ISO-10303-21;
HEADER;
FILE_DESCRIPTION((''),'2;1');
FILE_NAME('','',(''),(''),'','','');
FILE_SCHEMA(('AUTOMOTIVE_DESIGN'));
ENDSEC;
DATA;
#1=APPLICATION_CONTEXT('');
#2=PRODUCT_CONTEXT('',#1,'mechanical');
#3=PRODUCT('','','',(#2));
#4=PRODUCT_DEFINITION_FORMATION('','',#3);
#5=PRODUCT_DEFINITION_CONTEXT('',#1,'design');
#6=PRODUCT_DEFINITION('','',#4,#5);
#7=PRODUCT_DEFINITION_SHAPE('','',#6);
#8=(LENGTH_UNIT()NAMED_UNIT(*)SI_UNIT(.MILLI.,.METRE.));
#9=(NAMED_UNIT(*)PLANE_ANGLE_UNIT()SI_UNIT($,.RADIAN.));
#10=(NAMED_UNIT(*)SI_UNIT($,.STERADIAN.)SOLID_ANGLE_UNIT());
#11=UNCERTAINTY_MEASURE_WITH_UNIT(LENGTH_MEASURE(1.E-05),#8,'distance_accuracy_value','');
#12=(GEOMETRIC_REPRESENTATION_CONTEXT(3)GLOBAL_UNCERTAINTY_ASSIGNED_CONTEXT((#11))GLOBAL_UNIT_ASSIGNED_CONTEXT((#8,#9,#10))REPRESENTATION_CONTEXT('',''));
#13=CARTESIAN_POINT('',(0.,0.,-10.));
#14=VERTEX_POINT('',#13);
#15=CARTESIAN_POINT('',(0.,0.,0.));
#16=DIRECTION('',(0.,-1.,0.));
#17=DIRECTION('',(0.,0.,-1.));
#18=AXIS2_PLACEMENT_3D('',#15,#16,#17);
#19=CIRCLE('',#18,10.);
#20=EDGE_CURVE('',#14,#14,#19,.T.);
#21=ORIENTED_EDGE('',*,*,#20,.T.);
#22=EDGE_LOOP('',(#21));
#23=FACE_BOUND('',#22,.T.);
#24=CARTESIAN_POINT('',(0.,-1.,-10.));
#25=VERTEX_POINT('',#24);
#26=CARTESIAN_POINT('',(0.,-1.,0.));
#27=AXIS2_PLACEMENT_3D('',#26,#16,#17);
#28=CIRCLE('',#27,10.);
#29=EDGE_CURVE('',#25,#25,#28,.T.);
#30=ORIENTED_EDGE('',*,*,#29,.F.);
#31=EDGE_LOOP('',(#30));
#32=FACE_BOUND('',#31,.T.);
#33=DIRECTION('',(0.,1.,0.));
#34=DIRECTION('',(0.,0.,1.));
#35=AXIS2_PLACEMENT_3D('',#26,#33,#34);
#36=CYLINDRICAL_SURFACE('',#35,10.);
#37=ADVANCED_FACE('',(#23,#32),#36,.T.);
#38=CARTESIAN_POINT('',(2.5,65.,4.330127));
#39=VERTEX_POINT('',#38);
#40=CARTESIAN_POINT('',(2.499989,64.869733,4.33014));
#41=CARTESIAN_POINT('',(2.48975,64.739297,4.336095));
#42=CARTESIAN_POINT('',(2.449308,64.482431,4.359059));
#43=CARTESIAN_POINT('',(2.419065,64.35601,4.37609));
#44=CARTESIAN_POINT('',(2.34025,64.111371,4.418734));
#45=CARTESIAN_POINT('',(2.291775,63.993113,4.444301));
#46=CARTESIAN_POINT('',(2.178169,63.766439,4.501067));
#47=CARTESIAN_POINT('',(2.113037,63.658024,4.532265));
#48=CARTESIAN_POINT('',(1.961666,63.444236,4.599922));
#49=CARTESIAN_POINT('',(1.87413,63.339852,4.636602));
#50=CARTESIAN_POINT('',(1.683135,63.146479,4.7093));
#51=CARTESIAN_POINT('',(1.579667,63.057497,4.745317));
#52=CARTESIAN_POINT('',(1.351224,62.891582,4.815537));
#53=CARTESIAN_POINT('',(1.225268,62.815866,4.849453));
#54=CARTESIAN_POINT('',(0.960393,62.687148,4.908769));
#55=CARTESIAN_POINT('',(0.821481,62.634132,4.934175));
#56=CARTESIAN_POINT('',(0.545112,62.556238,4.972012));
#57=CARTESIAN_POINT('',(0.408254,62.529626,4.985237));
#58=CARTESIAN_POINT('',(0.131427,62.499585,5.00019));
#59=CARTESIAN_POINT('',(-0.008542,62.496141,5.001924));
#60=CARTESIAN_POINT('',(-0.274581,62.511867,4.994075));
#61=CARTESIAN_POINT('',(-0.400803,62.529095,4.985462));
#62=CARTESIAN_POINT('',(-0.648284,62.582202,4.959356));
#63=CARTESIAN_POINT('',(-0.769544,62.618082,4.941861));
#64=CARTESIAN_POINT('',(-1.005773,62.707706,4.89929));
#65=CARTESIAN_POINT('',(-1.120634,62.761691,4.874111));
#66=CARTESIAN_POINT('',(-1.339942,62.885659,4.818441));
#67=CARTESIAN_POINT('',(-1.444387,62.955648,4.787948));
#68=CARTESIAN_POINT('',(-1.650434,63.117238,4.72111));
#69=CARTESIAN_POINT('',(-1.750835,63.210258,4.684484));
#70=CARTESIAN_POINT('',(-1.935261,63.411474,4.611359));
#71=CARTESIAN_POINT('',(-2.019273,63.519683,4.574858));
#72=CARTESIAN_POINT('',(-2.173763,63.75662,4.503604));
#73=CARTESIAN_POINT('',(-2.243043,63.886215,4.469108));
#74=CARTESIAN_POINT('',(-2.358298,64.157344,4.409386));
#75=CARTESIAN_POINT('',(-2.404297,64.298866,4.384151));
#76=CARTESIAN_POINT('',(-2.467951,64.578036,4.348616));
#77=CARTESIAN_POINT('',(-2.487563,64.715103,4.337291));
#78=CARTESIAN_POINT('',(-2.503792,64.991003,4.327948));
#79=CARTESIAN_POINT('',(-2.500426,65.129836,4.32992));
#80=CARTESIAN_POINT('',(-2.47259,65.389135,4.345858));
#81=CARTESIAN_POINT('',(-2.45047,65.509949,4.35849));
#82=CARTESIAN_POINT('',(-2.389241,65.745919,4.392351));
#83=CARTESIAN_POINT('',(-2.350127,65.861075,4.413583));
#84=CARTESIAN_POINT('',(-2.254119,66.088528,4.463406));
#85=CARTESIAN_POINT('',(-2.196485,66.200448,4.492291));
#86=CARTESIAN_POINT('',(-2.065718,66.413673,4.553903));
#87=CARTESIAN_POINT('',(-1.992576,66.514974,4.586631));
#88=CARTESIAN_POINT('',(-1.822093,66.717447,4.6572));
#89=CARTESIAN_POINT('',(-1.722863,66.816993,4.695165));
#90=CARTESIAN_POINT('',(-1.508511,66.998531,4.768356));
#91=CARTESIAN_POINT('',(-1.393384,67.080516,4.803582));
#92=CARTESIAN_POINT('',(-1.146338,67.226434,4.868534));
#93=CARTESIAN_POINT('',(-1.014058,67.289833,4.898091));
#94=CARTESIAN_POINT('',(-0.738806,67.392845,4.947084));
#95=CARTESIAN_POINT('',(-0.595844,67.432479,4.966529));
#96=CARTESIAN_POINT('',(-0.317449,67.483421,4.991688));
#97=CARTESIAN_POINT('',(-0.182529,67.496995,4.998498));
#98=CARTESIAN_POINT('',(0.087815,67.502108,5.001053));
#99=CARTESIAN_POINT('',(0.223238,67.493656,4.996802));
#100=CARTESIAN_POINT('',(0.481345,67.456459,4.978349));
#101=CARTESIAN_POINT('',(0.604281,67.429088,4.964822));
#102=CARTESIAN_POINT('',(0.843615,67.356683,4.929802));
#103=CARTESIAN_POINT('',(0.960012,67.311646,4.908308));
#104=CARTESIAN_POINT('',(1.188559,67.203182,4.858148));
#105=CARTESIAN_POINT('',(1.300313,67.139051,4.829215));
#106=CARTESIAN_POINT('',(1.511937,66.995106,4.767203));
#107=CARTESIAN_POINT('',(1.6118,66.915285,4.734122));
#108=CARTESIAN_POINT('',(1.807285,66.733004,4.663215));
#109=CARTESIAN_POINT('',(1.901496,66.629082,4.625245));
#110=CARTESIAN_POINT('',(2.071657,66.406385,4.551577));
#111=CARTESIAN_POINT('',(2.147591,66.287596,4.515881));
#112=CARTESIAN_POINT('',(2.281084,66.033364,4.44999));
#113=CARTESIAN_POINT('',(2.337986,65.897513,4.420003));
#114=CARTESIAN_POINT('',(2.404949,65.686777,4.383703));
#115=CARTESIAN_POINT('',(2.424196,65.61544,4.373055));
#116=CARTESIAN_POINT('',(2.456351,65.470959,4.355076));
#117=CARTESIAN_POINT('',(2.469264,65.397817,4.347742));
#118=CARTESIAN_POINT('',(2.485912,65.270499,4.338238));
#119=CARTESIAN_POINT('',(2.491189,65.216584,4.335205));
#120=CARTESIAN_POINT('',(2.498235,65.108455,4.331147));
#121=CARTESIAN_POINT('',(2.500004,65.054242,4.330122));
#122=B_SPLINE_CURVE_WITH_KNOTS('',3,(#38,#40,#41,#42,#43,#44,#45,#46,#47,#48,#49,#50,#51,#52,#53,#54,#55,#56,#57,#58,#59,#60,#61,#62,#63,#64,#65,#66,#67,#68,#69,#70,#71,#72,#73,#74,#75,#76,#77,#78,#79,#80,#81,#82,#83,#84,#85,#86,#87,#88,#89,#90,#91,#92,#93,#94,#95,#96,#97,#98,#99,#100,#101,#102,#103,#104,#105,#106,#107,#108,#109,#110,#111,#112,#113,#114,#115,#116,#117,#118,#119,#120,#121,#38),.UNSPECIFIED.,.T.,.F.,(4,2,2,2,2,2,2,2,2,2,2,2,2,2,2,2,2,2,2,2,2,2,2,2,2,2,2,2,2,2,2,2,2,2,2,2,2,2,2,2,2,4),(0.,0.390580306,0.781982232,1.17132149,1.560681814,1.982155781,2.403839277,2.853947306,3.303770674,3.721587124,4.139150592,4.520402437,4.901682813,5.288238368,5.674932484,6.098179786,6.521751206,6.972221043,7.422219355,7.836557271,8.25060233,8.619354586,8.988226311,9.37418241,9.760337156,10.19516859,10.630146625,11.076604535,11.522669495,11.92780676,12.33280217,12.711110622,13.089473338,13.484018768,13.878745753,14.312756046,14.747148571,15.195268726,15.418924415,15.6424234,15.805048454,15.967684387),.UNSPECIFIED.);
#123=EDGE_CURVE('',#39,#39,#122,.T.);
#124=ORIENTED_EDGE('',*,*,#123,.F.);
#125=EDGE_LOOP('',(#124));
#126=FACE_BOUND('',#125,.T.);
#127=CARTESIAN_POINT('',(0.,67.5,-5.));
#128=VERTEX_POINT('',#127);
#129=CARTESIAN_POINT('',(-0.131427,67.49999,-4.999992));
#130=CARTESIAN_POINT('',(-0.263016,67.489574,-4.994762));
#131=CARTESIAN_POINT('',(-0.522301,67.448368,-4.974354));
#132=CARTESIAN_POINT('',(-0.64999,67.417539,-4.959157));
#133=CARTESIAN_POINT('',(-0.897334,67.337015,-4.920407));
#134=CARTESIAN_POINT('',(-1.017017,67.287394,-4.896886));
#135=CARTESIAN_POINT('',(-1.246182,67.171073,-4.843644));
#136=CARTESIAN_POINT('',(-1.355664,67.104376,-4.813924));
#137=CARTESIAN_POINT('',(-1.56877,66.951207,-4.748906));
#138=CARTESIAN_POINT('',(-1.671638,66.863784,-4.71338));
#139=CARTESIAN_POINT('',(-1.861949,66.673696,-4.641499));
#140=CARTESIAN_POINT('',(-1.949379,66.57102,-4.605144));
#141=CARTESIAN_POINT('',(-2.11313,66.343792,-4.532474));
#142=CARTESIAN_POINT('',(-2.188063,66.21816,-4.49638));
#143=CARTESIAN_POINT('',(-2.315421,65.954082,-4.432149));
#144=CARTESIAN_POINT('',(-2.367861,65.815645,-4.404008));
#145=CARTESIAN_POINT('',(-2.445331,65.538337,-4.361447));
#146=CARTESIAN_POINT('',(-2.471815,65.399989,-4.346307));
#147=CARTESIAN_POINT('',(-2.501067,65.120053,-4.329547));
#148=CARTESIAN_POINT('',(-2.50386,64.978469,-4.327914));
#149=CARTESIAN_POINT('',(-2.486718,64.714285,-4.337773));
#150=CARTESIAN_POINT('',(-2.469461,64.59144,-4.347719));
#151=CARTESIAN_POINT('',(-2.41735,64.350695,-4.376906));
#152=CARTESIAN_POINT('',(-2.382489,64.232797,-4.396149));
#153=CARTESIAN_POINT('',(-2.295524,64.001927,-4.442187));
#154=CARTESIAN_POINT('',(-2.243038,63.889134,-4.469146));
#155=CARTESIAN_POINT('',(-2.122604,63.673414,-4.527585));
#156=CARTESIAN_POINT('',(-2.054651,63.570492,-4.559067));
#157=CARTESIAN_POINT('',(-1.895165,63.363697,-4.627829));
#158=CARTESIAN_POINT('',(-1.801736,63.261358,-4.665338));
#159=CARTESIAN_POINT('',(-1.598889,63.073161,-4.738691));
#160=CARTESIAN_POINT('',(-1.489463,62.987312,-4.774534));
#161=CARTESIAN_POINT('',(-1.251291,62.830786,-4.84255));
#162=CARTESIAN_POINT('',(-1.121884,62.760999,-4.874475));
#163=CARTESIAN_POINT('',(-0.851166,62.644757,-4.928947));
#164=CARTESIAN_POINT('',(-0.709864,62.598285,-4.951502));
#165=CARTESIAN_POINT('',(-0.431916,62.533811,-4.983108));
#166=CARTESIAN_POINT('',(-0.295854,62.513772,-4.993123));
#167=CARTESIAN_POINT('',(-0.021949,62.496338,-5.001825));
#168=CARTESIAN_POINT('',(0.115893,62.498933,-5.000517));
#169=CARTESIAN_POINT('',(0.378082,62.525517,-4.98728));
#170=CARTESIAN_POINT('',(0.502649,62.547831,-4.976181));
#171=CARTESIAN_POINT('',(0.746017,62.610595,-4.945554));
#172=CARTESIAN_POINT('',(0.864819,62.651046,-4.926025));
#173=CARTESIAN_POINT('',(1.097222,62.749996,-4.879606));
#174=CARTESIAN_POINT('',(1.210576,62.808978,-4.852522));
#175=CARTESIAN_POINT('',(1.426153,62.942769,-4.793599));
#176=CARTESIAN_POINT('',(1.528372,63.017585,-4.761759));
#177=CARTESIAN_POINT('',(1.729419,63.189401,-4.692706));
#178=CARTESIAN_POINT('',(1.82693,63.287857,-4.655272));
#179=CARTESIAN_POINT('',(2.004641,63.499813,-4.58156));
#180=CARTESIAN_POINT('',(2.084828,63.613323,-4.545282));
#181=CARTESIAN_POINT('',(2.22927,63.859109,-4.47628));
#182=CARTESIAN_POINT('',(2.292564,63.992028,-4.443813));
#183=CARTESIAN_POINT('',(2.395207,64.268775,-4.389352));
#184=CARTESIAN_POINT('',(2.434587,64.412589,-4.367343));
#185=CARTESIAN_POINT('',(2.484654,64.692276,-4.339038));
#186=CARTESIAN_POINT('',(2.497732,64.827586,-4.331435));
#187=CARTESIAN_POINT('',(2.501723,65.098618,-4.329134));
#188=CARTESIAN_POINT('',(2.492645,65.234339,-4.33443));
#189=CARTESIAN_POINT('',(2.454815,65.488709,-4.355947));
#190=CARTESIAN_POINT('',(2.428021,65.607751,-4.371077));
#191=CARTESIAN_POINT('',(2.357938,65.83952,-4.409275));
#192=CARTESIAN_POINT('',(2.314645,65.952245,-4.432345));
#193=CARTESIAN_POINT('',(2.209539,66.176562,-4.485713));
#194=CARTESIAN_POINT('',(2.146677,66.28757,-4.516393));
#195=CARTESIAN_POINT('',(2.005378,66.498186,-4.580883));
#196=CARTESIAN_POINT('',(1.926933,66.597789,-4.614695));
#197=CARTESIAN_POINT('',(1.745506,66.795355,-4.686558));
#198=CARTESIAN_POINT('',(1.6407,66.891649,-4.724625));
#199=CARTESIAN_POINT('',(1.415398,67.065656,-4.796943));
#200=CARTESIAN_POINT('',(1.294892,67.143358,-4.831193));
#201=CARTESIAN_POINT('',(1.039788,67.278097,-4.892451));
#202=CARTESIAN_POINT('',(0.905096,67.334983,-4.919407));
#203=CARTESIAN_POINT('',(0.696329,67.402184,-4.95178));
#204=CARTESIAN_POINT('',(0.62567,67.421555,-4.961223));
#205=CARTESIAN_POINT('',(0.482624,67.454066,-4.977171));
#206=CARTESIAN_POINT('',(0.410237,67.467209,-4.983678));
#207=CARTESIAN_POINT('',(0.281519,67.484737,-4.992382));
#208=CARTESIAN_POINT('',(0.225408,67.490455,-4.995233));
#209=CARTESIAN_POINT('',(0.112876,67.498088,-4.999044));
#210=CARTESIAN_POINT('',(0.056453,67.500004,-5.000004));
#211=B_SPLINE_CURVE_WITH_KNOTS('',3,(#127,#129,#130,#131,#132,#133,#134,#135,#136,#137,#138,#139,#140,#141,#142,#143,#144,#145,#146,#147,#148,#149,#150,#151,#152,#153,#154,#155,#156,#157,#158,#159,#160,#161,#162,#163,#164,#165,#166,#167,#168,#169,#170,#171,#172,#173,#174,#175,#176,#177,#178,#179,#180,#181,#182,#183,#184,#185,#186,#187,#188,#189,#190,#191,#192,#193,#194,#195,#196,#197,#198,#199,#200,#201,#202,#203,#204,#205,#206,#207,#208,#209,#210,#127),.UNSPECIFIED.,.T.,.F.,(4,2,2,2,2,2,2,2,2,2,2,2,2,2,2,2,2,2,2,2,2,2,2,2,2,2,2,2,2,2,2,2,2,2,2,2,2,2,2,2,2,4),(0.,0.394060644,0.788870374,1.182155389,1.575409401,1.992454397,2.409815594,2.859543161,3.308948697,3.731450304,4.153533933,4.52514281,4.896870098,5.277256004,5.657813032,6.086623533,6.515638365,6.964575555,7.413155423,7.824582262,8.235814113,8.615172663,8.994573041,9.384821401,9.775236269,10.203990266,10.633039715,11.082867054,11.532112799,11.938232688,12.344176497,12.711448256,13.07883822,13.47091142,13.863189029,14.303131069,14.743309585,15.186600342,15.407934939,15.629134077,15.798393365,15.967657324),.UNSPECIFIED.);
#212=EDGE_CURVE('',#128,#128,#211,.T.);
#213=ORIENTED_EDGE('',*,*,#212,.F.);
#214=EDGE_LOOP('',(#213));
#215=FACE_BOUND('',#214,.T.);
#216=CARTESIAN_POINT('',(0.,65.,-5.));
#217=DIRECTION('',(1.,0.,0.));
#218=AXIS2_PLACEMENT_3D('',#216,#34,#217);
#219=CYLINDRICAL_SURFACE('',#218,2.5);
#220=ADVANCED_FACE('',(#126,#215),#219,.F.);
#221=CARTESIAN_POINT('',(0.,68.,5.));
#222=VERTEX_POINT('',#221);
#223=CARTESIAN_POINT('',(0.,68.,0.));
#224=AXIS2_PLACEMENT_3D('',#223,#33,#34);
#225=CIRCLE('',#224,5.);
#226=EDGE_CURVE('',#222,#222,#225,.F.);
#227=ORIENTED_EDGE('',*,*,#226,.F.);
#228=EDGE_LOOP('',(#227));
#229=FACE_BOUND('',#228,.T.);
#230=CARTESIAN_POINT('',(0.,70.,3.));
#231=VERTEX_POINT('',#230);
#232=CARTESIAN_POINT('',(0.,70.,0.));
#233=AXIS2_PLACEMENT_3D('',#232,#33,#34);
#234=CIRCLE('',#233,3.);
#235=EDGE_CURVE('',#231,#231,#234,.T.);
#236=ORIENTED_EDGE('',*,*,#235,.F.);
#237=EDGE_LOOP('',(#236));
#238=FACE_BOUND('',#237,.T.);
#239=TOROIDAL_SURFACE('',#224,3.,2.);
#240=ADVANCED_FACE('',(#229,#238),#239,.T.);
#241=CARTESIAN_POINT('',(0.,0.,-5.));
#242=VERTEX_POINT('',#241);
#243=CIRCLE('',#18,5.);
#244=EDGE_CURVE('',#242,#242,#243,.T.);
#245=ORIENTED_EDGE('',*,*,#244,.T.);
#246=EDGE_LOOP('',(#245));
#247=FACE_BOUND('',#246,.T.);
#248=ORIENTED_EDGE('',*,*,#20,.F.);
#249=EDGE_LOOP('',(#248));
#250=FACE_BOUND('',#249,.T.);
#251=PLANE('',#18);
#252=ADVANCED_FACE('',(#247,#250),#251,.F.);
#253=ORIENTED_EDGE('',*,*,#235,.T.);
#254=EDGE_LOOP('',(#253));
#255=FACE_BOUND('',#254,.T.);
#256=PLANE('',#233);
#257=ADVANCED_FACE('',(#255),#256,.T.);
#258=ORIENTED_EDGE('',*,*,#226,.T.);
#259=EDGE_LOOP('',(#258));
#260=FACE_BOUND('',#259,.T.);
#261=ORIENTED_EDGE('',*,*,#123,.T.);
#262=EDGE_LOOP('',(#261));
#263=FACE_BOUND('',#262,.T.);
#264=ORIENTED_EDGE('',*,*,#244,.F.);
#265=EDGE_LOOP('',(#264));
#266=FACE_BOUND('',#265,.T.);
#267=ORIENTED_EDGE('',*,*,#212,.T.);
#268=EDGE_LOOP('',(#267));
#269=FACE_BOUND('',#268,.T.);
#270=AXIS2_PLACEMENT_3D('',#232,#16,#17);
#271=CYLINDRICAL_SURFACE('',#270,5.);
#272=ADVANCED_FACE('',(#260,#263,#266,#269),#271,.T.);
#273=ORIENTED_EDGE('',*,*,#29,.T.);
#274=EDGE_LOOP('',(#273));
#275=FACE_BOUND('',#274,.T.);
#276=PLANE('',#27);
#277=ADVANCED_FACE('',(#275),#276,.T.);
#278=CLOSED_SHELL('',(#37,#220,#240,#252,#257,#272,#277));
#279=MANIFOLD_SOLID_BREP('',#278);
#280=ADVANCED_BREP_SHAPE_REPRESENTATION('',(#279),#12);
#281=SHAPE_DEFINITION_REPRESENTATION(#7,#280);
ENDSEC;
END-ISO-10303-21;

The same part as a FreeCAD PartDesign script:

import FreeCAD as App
import Part
import Sketcher
from FreeCAD import Vector


def edges_at(feature, points):
    """Names of the edges that pass closest to the given points."""
    edges = feature.Shape.Edges
    near = lambda p: min(range(len(edges)), key=lambda i: edges[i].distToShape(Part.Vertex(*p))[0])
    return sorted({f"Edge{near(p) + 1}" for p in points})

doc = App.newDocument("Part")
params = doc.addObject("Spreadsheet::Sheet", "Params")
for row, (alias, value) in enumerate([
    ("sketch1_diameter", "10 mm"),
    ("pad1_length", "70 mm"),
    ("fillet_radius", "2 mm"),
    ("sketch2_diameter", "5 mm"),
    ("sketch3_diameter", "20 mm"),
    ("pad2_length", "1 mm"),
], start=1):
    params.set(f"A{row}", alias)
    params.set(f"B{row}", "=" + value)
    params.setAlias(f"B{row}", alias)

body = doc.addObject("PartDesign::Body", "Body")

# Sketch on XZ plane
sketch1 = doc.addObject("Sketcher::SketchObject", "Sketch")
body.addObject(sketch1)
sketch1.AttachmentSupport = (doc.XZ_Plane, [""])
sketch1.MapMode = "FlatFace"
sketch1.addGeometry(Part.Circle(Vector(0, 0, 0), Vector(0, 0, 1), 5), False)
sketch1.addConstraint([
    Sketcher.Constraint("Coincident", 0, 3, -1, 1),
    Sketcher.Constraint("Diameter", 0, 10.0),
])
sketch1.setExpression("Constraints[1]", "Params.sketch1_diameter")
pad1 = doc.addObject("PartDesign::Pad", "Pad")
body.addObject(pad1)
pad1.Profile = sketch1
pad1.setExpression("Length", "Params.pad1_length")
pad1.Reversed = True
doc.recompute()

fillet = doc.addObject("PartDesign::Fillet", "Fillet")
body.addObject(fillet)
fillet.Base = (pad1, edges_at(pad1, [(-5, 70, 0)]))
fillet.setExpression("Radius", "Params.fillet_radius")

# Sketch on XY plane
sketch2 = doc.addObject("Sketcher::SketchObject", "Sketch001")
body.addObject(sketch2)
sketch2.AttachmentSupport = (doc.XY_Plane, [""])
sketch2.MapMode = "FlatFace"
sketch2.addGeometry(Part.Circle(Vector(0, 65, 0), Vector(0, 0, 1), 2.5), False)
sketch2.addConstraint([
    Sketcher.Constraint("PointOnObject", 0, 3, -2),
    Sketcher.Constraint("Diameter", 0, 5.0),
    Sketcher.Constraint("DistanceY", -1, 1, 0, 3, 65.0),
])
sketch2.setExpression("Constraints[1]", "Params.sketch2_diameter")
pocket1 = doc.addObject("PartDesign::Pocket", "Pocket")
body.addObject(pocket1)
pocket1.Profile = sketch2
pocket1.Type = "ThroughAll"
pocket1.Midplane = True

# Sketch on XZ plane
sketch3 = doc.addObject("Sketcher::SketchObject", "Sketch002")
body.addObject(sketch3)
sketch3.AttachmentSupport = (doc.XZ_Plane, [""])
sketch3.MapMode = "FlatFace"
sketch3.addGeometry(Part.Circle(Vector(0, 0, 0), Vector(0, 0, 1), 10), False)
sketch3.addConstraint([
    Sketcher.Constraint("Coincident", 0, 3, -1, 1),
    Sketcher.Constraint("Diameter", 0, 20.0),
])
sketch3.setExpression("Constraints[1]", "Params.sketch3_diameter")
pad2 = doc.addObject("PartDesign::Pad", "Pad001")
body.addObject(pad2)
pad2.Profile = sketch3
pad2.setExpression("Length", "Params.pad2_length")

doc.recompute()
